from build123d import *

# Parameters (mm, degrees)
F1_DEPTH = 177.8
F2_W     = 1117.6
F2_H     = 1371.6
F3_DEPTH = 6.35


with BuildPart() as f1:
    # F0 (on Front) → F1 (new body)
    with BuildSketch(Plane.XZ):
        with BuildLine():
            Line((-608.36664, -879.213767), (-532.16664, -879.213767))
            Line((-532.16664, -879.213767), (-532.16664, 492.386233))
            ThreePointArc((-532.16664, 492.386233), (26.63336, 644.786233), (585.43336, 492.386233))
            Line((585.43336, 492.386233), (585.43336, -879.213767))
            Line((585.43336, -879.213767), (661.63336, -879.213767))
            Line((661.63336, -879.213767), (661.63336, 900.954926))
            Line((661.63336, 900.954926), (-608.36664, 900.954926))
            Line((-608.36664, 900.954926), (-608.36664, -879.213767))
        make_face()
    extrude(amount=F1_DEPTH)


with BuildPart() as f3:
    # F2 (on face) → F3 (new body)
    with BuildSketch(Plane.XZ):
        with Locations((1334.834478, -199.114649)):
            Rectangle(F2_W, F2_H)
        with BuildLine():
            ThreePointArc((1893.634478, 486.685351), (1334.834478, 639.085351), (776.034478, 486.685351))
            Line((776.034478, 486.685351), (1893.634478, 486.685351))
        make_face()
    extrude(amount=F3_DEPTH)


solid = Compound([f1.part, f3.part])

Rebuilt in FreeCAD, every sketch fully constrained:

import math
import FreeCAD as App
import Part
import Sketcher
from FreeCAD import Vector
Q = App.Units.Quantity

doc = App.newDocument("Part")
params = doc.addObject("Spreadsheet::Sheet", "Params")
for row, (alias, value) in enumerate([
    ("sketch1_width", "3 in"),
    ("sketch1_width2", "50 in"),
    ("sketch1_height", "54 in"),
    ("pad1_length", "7 in"),
    ("sketch2_width", "44 in"),
    ("sketch2_height", "54 in"),
    ("pad2_length", "0.25 in"),
], start=1):
    params.set(f"A{row}", alias)
    params.set(f"B{row}", "=" + value)
    params.setAlias(f"B{row}", alias)

body = doc.addObject("PartDesign::Body", "Body")

# Sketch on XZ plane
sketch1 = doc.addObject("Sketcher::SketchObject", "Sketch")
body.addObject(sketch1)
sketch1.AttachmentSupport = (doc.XZ_Plane, [""])
sketch1.MapMode = "FlatFace"
sketch1.addGeometry([
    Part.LineSegment(Vector(-608, -879, 0), Vector(-532, -879, 0)),  # 0
    Part.LineSegment(Vector(-532, -879, 0), Vector(-532, 492, 0)),  # 1
    Part.ArcOfCircle(Part.Circle(Vector(27, -456, 0), Vector(0, 0, 1), 1101), math.radians(59), math.radians(121)),  # 2
    Part.LineSegment(Vector(585, 492, 0), Vector(585, -879, 0)),  # 3
    Part.LineSegment(Vector(585, -879, 0), Vector(662, -879, 0)),  # 4
    Part.LineSegment(Vector(662, -879, 0), Vector(662, 901, 0)),  # 5
    Part.LineSegment(Vector(662, 901, 0), Vector(-608, 901, 0)),  # 6
    Part.LineSegment(Vector(-608, 901, 0), Vector(-608, -879, 0)),  # 7
], False)
sketch1.addConstraint([
    Sketcher.Constraint("Coincident", 0, 2, 1, 1),
    Sketcher.Constraint("Coincident", 1, 2, 2, 2),
    Sketcher.Constraint("Coincident", 2, 1, 3, 1),
    Sketcher.Constraint("Coincident", 3, 2, 4, 1),
    Sketcher.Constraint("Coincident", 4, 2, 5, 1),
    Sketcher.Constraint("Coincident", 5, 2, 6, 1),
    Sketcher.Constraint("Coincident", 6, 2, 7, 1),
    Sketcher.Constraint("Coincident", 7, 2, 0, 1),
    Sketcher.Constraint("Horizontal", 0),
    Sketcher.Constraint("Vertical", 1),
    Sketcher.Constraint("Vertical", 3),
    Sketcher.Constraint("Horizontal", 4),
    Sketcher.Constraint("Vertical", 5),
    Sketcher.Constraint("Horizontal", 6),
    Sketcher.Constraint("Vertical", 7),
    Sketcher.Constraint("Horizontal", 0, 2, 3, 2),
    Sketcher.Constraint("Equal", 0, 4),
    Sketcher.Constraint("Equal", 1, 3),
    Sketcher.Constraint("DistanceX", 0, 1, 0, 2, Q("3 in")),
    Sketcher.Constraint("DistanceX", 6, 2, 6, 1, Q("50 in")),
    Sketcher.Constraint("DistanceY", 1, 1, 1, 2, Q("54 in")),
    Sketcher.Constraint("Radius", 2, 1100.666667),
    Sketcher.Constraint("DistanceY", 5, 1, 5, 2, 1780.168693),
    Sketcher.Constraint("DistanceX", -1, 1, 2, 3, 26.63336),
    Sketcher.Constraint("DistanceY", 2, 3, -1, 1, 455.880434),
])
sketch1.setExpression("Constraints[18]", "Params.sketch1_width")
sketch1.setExpression("Constraints[19]", "Params.sketch1_width2")
sketch1.setExpression("Constraints[20]", "Params.sketch1_height")
pad1 = doc.addObject("PartDesign::Pad", "Pad")
body.addObject(pad1)
pad1.Profile = sketch1
pad1.setExpression("Length", "Params.pad1_length")
body2 = doc.addObject("PartDesign::Body", "Body001")

# Sketch on XZ plane
sketch2 = doc.addObject("Sketcher::SketchObject", "Sketch001")
body2.addObject(sketch2)
sketch2.AttachmentSupport = (doc.getObject("XZ_Plane001"), [""])
sketch2.MapMode = "FlatFace"
sketch2.addGeometry([
    Part.LineSegment(Vector(776, 487, 0), Vector(776, -885, 0)),
    Part.LineSegment(Vector(776, -885, 0), Vector(1894, -885, 0)),
    Part.LineSegment(Vector(1894, -885, 0), Vector(1894, 487, 0)),
    Part.ArcOfCircle(Part.Circle(Vector(1335, -462, 0), Vector(0, 0, 1), 1101), math.radians(59), math.radians(121)),
], False)
sketch2.addConstraint([
    Sketcher.Constraint("Coincident", 0, 2, 1, 1),
    Sketcher.Constraint("Coincident", 1, 2, 2, 1),
    Sketcher.Constraint("Coincident", 2, 2, 3, 1),
    Sketcher.Constraint("Coincident", 3, 2, 0, 1),
    Sketcher.Constraint("Vertical", 0),
    Sketcher.Constraint("Horizontal", 1),
    Sketcher.Constraint("Vertical", 2),
    Sketcher.Constraint("Equal", 0, 2),
    Sketcher.Constraint("DistanceX", 1, 1, 1, 2, Q("44 in")),
    Sketcher.Constraint("DistanceY", 0, 2, 0, 1, Q("54 in")),
    Sketcher.Constraint("Radius", 3, 1100.666667),
    Sketcher.Constraint("DistanceX", -1, 1, 3, 3, 1334.834478),
    Sketcher.Constraint("DistanceY", 0, 2, -1, 1, 884.914649),
])
sketch2.setExpression("Constraints[8]", "Params.sketch2_width")
sketch2.setExpression("Constraints[9]", "Params.sketch2_height")
pad2 = doc.addObject("PartDesign::Pad", "Pad001")
body2.addObject(pad2)
pad2.Profile = sketch2
pad2.setExpression("Length", "Params.pad2_length")

doc.recompute()
